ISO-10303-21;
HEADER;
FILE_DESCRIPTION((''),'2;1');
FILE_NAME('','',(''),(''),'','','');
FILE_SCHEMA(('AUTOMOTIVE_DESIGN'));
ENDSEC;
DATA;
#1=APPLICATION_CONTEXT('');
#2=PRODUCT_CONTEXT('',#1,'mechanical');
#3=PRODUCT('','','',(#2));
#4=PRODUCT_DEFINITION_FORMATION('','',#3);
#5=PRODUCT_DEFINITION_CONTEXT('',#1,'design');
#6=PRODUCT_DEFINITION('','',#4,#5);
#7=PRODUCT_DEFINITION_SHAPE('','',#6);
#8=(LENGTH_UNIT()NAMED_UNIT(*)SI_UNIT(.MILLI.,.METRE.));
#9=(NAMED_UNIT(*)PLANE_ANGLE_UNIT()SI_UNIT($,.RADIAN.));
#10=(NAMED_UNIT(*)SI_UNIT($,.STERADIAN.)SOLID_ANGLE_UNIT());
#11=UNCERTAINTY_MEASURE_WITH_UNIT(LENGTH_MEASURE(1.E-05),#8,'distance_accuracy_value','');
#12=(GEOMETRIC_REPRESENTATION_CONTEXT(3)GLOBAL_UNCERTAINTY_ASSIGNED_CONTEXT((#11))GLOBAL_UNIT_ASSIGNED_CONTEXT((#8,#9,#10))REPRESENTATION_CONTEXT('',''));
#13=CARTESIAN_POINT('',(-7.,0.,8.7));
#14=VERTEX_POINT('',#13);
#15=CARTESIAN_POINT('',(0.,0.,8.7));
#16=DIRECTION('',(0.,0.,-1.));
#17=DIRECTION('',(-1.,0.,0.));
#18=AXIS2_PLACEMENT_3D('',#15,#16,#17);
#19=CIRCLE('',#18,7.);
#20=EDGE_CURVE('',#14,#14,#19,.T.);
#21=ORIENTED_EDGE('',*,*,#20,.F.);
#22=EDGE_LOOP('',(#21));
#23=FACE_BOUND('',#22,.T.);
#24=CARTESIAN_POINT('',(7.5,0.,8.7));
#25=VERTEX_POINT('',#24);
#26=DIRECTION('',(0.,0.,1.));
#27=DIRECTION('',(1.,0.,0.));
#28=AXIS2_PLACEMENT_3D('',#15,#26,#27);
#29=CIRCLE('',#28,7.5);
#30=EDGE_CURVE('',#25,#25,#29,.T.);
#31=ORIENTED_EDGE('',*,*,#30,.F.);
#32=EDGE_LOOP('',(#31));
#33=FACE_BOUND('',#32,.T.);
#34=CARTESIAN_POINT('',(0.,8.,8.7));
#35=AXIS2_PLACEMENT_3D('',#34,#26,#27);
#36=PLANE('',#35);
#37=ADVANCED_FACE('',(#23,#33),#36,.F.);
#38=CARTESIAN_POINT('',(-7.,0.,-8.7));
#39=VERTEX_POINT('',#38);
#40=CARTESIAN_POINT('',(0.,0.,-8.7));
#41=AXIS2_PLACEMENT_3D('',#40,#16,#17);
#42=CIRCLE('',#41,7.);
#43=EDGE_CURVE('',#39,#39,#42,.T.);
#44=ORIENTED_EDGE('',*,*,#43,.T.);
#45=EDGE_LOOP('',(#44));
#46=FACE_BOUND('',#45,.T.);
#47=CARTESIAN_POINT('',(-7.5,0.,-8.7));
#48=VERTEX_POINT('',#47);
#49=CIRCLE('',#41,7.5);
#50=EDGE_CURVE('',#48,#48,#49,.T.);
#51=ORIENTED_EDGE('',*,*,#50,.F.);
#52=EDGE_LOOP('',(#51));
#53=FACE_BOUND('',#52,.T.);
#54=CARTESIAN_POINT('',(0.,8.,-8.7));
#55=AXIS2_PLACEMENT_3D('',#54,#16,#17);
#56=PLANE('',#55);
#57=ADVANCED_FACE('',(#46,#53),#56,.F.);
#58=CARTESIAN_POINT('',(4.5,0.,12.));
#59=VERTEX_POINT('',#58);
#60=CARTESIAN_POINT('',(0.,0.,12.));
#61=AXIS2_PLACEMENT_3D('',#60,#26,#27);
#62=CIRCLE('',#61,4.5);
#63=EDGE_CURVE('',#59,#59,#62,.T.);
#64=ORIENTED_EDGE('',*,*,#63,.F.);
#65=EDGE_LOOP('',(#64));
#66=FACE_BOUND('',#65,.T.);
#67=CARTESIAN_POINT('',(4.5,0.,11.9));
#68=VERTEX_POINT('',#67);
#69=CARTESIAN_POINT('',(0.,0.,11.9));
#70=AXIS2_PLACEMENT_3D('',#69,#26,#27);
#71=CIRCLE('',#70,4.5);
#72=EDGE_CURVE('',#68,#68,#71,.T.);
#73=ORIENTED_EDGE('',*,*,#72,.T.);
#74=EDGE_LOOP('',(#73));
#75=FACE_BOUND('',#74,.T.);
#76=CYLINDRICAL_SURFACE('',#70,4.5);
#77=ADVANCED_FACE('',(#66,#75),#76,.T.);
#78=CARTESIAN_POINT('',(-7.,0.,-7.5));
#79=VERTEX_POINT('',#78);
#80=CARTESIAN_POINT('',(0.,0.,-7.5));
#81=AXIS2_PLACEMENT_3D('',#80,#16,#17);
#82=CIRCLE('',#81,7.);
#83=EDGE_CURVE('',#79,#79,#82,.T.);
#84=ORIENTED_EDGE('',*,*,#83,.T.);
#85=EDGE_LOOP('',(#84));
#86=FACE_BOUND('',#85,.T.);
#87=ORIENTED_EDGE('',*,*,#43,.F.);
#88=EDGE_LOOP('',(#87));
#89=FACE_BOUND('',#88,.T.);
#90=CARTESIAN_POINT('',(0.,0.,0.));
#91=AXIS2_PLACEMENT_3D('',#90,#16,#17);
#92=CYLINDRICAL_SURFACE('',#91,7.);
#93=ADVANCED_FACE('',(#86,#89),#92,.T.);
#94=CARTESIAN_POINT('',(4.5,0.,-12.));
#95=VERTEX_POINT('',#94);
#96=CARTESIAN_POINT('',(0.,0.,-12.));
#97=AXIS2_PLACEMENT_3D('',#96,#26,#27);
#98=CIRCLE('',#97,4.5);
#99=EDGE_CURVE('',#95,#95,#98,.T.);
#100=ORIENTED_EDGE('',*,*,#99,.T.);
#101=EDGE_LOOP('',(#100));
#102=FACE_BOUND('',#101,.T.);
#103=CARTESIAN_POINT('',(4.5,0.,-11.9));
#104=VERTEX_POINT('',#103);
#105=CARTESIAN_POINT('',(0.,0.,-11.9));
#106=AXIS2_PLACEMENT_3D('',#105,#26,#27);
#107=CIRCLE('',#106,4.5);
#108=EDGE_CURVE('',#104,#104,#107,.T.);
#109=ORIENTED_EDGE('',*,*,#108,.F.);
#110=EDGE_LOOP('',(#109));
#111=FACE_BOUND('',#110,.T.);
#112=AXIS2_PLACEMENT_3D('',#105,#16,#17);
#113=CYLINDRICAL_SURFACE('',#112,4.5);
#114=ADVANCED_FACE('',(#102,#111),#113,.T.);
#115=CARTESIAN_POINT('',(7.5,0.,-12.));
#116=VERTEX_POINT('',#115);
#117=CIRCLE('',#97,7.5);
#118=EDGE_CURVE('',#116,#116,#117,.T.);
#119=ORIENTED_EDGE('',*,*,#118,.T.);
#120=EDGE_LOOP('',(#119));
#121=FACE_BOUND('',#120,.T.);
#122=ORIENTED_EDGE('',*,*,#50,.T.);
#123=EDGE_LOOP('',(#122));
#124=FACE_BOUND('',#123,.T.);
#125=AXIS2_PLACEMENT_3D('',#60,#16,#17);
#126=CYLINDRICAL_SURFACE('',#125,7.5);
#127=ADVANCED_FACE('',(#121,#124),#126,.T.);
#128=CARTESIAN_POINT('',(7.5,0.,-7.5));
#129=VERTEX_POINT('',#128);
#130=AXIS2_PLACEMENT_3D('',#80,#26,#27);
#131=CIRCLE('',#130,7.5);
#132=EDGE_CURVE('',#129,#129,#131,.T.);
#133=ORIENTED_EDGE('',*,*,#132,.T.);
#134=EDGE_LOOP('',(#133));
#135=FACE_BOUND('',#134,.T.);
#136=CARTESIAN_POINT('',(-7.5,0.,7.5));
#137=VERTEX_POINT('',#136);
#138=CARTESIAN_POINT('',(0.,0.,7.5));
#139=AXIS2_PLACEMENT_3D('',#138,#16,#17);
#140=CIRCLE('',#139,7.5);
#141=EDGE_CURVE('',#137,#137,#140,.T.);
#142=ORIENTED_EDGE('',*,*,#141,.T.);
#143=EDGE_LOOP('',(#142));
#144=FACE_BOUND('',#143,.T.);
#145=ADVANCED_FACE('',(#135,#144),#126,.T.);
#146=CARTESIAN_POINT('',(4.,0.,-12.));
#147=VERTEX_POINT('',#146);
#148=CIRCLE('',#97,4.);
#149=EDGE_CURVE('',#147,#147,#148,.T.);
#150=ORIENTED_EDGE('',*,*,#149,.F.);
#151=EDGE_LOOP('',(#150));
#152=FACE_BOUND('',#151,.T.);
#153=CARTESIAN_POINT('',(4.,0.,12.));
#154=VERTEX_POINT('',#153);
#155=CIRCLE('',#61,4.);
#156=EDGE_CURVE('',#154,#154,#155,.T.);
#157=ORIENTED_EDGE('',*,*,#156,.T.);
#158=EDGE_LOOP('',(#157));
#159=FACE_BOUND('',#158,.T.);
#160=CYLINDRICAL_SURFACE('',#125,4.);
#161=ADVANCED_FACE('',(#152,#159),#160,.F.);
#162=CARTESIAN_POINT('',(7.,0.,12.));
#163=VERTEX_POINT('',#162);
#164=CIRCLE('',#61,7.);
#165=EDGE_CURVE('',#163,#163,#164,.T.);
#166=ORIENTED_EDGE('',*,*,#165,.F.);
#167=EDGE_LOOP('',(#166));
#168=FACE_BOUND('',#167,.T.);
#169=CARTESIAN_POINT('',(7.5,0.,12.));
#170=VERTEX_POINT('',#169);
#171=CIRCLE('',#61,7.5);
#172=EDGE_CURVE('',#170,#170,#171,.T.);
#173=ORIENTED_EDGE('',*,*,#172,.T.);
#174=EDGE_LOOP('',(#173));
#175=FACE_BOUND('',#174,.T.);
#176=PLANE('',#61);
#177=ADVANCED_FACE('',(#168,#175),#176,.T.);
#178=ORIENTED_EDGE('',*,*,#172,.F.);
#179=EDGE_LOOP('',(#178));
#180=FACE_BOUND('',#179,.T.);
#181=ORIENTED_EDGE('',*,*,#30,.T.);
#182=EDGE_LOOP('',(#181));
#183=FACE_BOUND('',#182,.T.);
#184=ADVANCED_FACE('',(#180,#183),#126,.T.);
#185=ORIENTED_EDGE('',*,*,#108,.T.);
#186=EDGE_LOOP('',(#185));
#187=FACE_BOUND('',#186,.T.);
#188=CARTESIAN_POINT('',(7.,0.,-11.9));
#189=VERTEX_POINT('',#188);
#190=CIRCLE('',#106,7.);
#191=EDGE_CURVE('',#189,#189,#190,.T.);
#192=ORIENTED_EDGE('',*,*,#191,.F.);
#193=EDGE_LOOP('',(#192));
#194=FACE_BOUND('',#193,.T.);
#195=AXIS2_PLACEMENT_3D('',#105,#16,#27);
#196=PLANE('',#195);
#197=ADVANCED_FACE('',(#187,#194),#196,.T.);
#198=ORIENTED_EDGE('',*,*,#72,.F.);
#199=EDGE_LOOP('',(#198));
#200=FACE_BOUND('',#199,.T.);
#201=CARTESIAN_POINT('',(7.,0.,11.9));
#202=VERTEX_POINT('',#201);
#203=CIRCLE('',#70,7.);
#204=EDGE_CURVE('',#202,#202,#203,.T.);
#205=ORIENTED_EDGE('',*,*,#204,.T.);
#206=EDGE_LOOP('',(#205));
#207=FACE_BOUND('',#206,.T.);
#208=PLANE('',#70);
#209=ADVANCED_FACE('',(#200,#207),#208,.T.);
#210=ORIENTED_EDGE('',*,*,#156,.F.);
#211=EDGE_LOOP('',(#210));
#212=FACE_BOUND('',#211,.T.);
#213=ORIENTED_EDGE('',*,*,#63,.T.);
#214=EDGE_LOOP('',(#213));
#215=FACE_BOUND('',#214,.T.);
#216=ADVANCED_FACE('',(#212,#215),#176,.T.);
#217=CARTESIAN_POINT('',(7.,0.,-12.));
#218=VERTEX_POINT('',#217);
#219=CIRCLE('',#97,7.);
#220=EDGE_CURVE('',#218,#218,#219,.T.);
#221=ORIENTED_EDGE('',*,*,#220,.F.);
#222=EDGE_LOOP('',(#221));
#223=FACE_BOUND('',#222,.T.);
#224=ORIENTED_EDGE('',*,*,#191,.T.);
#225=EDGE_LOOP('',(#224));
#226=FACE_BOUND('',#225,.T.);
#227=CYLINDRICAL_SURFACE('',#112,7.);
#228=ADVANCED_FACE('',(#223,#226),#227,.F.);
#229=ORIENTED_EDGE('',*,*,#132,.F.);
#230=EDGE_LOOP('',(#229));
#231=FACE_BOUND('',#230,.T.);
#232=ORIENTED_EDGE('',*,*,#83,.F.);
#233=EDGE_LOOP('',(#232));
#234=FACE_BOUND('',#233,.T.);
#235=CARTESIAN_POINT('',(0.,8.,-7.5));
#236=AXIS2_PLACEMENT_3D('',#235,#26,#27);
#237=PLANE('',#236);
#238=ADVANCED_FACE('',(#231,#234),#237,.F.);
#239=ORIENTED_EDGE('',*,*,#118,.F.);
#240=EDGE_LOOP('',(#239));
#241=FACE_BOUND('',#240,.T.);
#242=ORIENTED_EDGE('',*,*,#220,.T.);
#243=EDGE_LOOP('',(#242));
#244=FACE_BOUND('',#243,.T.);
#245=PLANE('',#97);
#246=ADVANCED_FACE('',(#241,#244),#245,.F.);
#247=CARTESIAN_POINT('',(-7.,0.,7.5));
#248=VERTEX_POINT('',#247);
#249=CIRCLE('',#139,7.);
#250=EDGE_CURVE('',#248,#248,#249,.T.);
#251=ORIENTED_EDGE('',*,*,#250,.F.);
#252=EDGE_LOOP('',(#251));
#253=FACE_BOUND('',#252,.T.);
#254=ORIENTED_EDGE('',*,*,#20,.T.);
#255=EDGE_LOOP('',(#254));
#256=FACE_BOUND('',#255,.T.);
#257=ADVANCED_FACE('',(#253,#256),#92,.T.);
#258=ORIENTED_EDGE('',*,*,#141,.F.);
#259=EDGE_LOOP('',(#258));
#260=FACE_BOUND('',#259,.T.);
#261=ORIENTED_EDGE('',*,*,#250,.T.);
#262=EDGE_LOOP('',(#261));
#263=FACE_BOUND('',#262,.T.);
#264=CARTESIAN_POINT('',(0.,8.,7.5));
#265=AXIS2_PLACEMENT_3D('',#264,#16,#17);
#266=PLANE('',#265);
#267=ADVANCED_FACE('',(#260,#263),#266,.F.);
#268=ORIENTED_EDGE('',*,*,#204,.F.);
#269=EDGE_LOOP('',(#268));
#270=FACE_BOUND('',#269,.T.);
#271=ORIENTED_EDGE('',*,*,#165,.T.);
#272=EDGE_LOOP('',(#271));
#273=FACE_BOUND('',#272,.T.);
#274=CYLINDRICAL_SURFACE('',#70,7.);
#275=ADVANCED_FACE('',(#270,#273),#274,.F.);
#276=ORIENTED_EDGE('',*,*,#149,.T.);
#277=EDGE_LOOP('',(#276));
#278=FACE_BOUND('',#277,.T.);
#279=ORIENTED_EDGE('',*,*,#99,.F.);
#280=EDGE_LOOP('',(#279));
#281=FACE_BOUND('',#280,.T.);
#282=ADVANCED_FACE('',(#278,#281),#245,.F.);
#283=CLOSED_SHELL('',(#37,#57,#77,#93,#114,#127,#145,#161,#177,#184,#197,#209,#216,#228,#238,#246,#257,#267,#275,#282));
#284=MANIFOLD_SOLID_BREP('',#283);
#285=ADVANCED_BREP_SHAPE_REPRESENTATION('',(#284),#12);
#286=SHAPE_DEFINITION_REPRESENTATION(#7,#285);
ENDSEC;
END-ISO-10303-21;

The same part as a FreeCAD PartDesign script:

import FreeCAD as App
import Part
import Sketcher
from FreeCAD import Vector


def add_polygon(sketch, points):
    """Adds a closed chain of lines whose ends are joined by coincident constraints."""
    first, n = sketch.GeometryCount, len(points)
    for a, b in zip(points, points[1:] + points[:1]):
        sketch.addGeometry(Part.LineSegment(App.Vector(*a, 0), App.Vector(*b, 0)), False)
    for i in range(n):
        sketch.addConstraint(Sketcher.Constraint("Coincident", first + i, 2, first + (i + 1) % n, 1))

doc = App.newDocument("Part")
body = doc.addObject("PartDesign::Body", "Body")

# Sketch on XY plane
sketch1 = doc.addObject("Sketcher::SketchObject", "Sketch")
body.addObject(sketch1)
sketch1.AttachmentSupport = (doc.XY_Plane, [""])
sketch1.MapMode = "FlatFace"
sketch1.addGeometry([
    Part.Circle(Vector(0, 0, 0), Vector(0, 0, 1), 7.5),
    Part.Circle(Vector(0, 0, 0), Vector(0, 0, 1), 4),
], False)
sketch1.addConstraint([
    Sketcher.Constraint("Coincident", 0, 3, -1, 1),
    Sketcher.Constraint("Coincident", 1, 3, -1, 1),
    Sketcher.Constraint("Diameter", 0, 15.0),
    Sketcher.Constraint("Diameter", 1, 8.0),
])
pad1 = doc.addObject("PartDesign::Pad", "Pad")
body.addObject(pad1)
pad1.Profile = sketch1
pad1.Length = 24
pad1.Midplane = True

# Sketch on XY plane
sketch2 = doc.addObject("Sketcher::SketchObject", "Sketch001")
body.addObject(sketch2)
sketch2.AttachmentSupport = (doc.XY_Plane, [""])
sketch2.MapMode = "FlatFace"
sketch2.AttachmentOffset = App.Placement(Vector(0, 0, 12), App.Rotation())
sketch2.addGeometry([
    Part.Circle(Vector(0, 0, 0), Vector(0, 0, 1), 7),
    Part.Circle(Vector(0, 0, 0), Vector(0, 0, 1), 4.5),
], False)
sketch2.addConstraint([
    Sketcher.Constraint("Coincident", 0, 3, -1, 1),
    Sketcher.Constraint("Coincident", 1, 3, -1, 1),
    Sketcher.Constraint("Diameter", 0, 14.0),
    Sketcher.Constraint("Diameter", 1, 9.0),
])
pocket1 = doc.addObject("PartDesign::Pocket", "Pocket")
body.addObject(pocket1)
pocket1.Profile = sketch2
pocket1.Length = 0.1
doc.recompute()

mirrored = doc.addObject("PartDesign::Mirrored", "Mirrored")
body.addObject(mirrored)
mirrored.Originals = [pocket1]
mirrored.MirrorPlane = (doc.XY_Plane, [""])
body.Tip = mirrored

# Sketch on YZ plane
sketch3 = doc.addObject("Sketcher::SketchObject", "Sketch002")
body.addObject(sketch3)
sketch3.AttachmentSupport = (doc.YZ_Plane, [""])
sketch3.MapMode = "FlatFace"
add_polygon(sketch3, [(8, 8.7), (7, 8.7), (7, 7.5), (8, 7.5)])  # lines 0-3
add_polygon(sketch3, [(8, -7.5), (7, -7.5), (7, -8.7), (8, -8.7)])  # lines 4-7
sketch3.addConstraint([
    Sketcher.Constraint("Horizontal", 0),
    Sketcher.Constraint("Vertical", 1),
    Sketcher.Constraint("Horizontal", 2),
    Sketcher.Constraint("Vertical", 3),
    Sketcher.Constraint("Horizontal", 4),
    Sketcher.Constraint("Vertical", 5),
    Sketcher.Constraint("Horizontal", 6),
    Sketcher.Constraint("Vertical", 7),
    Sketcher.Constraint("Symmetric", 1, 2, 4, 2, -1),
    Sketcher.Constraint("Symmetric", 3, 2, 6, 2, -1),
    Sketcher.Constraint("DistanceX", 0, 2, 0, 1, 1.0),
    Sketcher.Constraint("DistanceY", 1, 2, 1, 1, 1.2),
    Sketcher.Constraint("DistanceX", -1, 1, 0, 2, 7.0),
    Sketcher.Constraint("DistanceY", 4, 2, 1, 2, 15.0),
])
groove = doc.addObject("PartDesign::Groove", "Groove")
body.addObject(groove)
groove.Profile = sketch3
groove.ReferenceAxis = (sketch3, ["V_Axis"])
groove.Angle = 360

doc.recompute()
